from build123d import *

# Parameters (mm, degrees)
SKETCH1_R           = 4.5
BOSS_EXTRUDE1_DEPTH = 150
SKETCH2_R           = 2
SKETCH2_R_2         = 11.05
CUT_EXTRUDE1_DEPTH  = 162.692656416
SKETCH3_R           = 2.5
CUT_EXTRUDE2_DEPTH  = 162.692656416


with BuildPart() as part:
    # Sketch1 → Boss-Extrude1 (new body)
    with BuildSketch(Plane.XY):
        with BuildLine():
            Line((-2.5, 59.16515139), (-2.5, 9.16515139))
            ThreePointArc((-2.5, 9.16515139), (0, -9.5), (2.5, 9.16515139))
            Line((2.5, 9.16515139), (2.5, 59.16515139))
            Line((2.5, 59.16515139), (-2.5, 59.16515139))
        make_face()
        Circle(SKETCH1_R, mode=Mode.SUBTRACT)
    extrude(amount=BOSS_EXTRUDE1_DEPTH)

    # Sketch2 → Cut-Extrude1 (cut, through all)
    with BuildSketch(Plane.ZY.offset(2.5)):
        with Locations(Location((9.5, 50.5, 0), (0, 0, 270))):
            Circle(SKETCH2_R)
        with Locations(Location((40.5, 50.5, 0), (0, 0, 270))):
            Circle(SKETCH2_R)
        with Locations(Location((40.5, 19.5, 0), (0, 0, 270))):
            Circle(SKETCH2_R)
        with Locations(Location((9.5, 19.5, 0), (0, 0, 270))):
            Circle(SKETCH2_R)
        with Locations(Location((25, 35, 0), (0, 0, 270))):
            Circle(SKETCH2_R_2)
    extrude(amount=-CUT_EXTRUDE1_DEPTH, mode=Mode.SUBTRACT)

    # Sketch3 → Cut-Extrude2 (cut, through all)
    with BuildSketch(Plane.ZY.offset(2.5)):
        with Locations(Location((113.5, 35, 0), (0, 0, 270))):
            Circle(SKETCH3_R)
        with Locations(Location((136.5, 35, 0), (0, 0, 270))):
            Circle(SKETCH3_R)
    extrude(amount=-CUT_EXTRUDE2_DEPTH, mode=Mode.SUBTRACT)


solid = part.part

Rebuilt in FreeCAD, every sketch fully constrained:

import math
import FreeCAD as App
import Part
import Sketcher

V = App.Vector

doc = App.newDocument("Part")
params = doc.addObject("Spreadsheet::Sheet", "Params")
for row, (alias, value) in enumerate([
    ("sketch1_diameter", "9 mm"),
    ("sketch1_radius", "9.5 mm"),
    ("sketch1_width", "5 mm"),
    ("sketch1_height", "50 mm"),
    ("pad1_length", "150 mm"),
    ("sketch2_diameter", "4 mm"),
    ("sketch2_diameter2", "22.1 mm"),
    ("sketch3_diameter", "5 mm"),
], start=1):
    params.set(f"A{row}", alias)
    params.set(f"B{row}", "=" + value)
    params.setAlias(f"B{row}", alias)

body = doc.addObject("PartDesign::Body", "Body")

sketch1 = body.newObject("Sketcher::SketchObject", "Sketch")
sketch1.AttachmentSupport = (doc.getObject("XY_Plane"), [""])
sketch1.MapMode = "FlatFace"
sketch1.addGeometry(Part.LineSegment(V(-2.5, 59.165151, 0), V(-2.5, 9.165151, 0)), False)
sketch1.addGeometry(Part.ArcOfCircle(Part.Circle(V(0, 0, 0), V(0, 0, 1), 9.5), math.radians(105.257523), math.radians(434.742477)), False)
sketch1.addGeometry(Part.LineSegment(V(2.5, 9.165151, 0), V(2.5, 59.165151, 0)), False)
sketch1.addGeometry(Part.LineSegment(V(2.5, 59.165151, 0), V(-2.5, 59.165151, 0)), False)
sketch1.addGeometry(Part.Circle(V(0, 0, 0), V(0, 0, 1), 4.5), False)
sketch1.addConstraint(Sketcher.Constraint("Coincident", 0, 2, 1, 1))
sketch1.addConstraint(Sketcher.Constraint("Coincident", 1, 2, 2, 1))
sketch1.addConstraint(Sketcher.Constraint("Coincident", 2, 2, 3, 1))
sketch1.addConstraint(Sketcher.Constraint("Coincident", 3, 2, 0, 1))
sketch1.addConstraint(Sketcher.Constraint("Vertical", 0))
sketch1.addConstraint(Sketcher.Constraint("Vertical", 2))
sketch1.addConstraint(Sketcher.Constraint("Horizontal", 3))
sketch1.addConstraint(Sketcher.Constraint("Coincident", 1, 3, -1, 1))
sketch1.addConstraint(Sketcher.Constraint("Coincident", 4, 3, -1, 1))
sketch1.addConstraint(Sketcher.Constraint("Horizontal", 0, 2, 1, 2))
sketch1.addConstraint(Sketcher.Constraint("Diameter", 4, 9.0))
sketch1.addConstraint(Sketcher.Constraint("Radius", 1, 9.5))
sketch1.addConstraint(Sketcher.Constraint("DistanceX", 3, 2, 3, 1, 5.0))
sketch1.addConstraint(Sketcher.Constraint("DistanceY", 0, 2, 0, 1, 50.0))
sketch1.setExpression("Constraints[10]", "Params.sketch1_diameter")
sketch1.setExpression("Constraints[11]", "Params.sketch1_radius")
sketch1.setExpression("Constraints[12]", "Params.sketch1_width")
sketch1.setExpression("Constraints[13]", "Params.sketch1_height")
pad1 = body.newObject("PartDesign::Pad", "Pad")
pad1.Profile = sketch1
pad1.setExpression("Length", "Params.pad1_length")

sketch2 = body.newObject("Sketcher::SketchObject", "Sketch001")
sketch2.AttachmentSupport = (doc.getObject("YZ_Plane"), [""])
sketch2.MapMode = "FlatFace"
sketch2.AttachmentOffset = App.Placement(V(0, 0, -2.5), App.Rotation())
sketch2.addGeometry(Part.Circle(V(50.5, 9.5, 0), V(0, 0, 1), 2), False)
sketch2.addGeometry(Part.Circle(V(50.5, 40.5, 0), V(0, 0, 1), 2), False)
sketch2.addGeometry(Part.Circle(V(19.5, 40.5, 0), V(0, 0, 1), 2), False)
sketch2.addGeometry(Part.Circle(V(19.5, 9.5, 0), V(0, 0, 1), 2), False)
sketch2.addGeometry(Part.Circle(V(35, 25, 0), V(0, 0, 1), 11.05), False)
sketch2.addConstraint(Sketcher.Constraint("Equal", 0, 1))
sketch2.addConstraint(Sketcher.Constraint("Equal", 1, 2))
sketch2.addConstraint(Sketcher.Constraint("Equal", 2, 3))
sketch2.addConstraint(Sketcher.Constraint("Horizontal", 1, 3, 2, 3))
sketch2.addConstraint(Sketcher.Constraint("Horizontal", 0, 3, 3, 3))
sketch2.addConstraint(Sketcher.Constraint("Vertical", 0, 3, 1, 3))
sketch2.addConstraint(Sketcher.Constraint("Vertical", 2, 3, 3, 3))
sketch2.addConstraint(Sketcher.Constraint("Diameter", 0, 4.0))
sketch2.addConstraint(Sketcher.Constraint("Diameter", 4, 22.1))
sketch2.addConstraint(Sketcher.Constraint("DistanceX", -1, 1, 4, 3, 35.0))
sketch2.addConstraint(Sketcher.Constraint("DistanceY", -1, 1, 4, 3, 25.0))
sketch2.addConstraint(Sketcher.Constraint("DistanceY", 0, 3, 1, 3, 31.0))
sketch2.addConstraint(Sketcher.Constraint("DistanceX", 2, 3, 1, 3, 31.0))
sketch2.addConstraint(Sketcher.Constraint("DistanceX", -1, 1, 0, 3, 50.5))
sketch2.addConstraint(Sketcher.Constraint("DistanceY", -1, 1, 0, 3, 9.5))
sketch2.setExpression("Constraints[7]", "Params.sketch2_diameter")
sketch2.setExpression("Constraints[8]", "Params.sketch2_diameter2")
pocket1 = body.newObject("PartDesign::Pocket", "Pocket")
pocket1.Profile = sketch2
pocket1.Type = "ThroughAll"
pocket1.Reversed = True

sketch3 = body.newObject("Sketcher::SketchObject", "Sketch002")
sketch3.AttachmentSupport = (doc.getObject("YZ_Plane"), [""])
sketch3.MapMode = "FlatFace"
sketch3.AttachmentOffset = App.Placement(V(0, 0, -2.5), App.Rotation())
sketch3.addGeometry(Part.Circle(V(35, 113.5, 0), V(0, 0, 1), 2.5), False)
sketch3.addGeometry(Part.Circle(V(35, 136.5, 0), V(0, 0, 1), 2.5), False)
sketch3.addConstraint(Sketcher.Constraint("Equal", 0, 1))
sketch3.addConstraint(Sketcher.Constraint("Vertical", 0, 3, 1, 3))
sketch3.addConstraint(Sketcher.Constraint("Diameter", 0, 5.0))
sketch3.addConstraint(Sketcher.Constraint("DistanceX", -1, 1, 0, 3, 35.0))
sketch3.addConstraint(Sketcher.Constraint("DistanceY", 0, 3, 1, 3, 23.0))
sketch3.addConstraint(Sketcher.Constraint("DistanceY", -1, 1, 0, 3, 113.5))
sketch3.setExpression("Constraints[2]", "Params.sketch3_diameter")
pocket2 = body.newObject("PartDesign::Pocket", "Pocket001")
pocket2.Profile = sketch3
pocket2.Type = "ThroughAll"
pocket2.Reversed = True

doc.recompute()
